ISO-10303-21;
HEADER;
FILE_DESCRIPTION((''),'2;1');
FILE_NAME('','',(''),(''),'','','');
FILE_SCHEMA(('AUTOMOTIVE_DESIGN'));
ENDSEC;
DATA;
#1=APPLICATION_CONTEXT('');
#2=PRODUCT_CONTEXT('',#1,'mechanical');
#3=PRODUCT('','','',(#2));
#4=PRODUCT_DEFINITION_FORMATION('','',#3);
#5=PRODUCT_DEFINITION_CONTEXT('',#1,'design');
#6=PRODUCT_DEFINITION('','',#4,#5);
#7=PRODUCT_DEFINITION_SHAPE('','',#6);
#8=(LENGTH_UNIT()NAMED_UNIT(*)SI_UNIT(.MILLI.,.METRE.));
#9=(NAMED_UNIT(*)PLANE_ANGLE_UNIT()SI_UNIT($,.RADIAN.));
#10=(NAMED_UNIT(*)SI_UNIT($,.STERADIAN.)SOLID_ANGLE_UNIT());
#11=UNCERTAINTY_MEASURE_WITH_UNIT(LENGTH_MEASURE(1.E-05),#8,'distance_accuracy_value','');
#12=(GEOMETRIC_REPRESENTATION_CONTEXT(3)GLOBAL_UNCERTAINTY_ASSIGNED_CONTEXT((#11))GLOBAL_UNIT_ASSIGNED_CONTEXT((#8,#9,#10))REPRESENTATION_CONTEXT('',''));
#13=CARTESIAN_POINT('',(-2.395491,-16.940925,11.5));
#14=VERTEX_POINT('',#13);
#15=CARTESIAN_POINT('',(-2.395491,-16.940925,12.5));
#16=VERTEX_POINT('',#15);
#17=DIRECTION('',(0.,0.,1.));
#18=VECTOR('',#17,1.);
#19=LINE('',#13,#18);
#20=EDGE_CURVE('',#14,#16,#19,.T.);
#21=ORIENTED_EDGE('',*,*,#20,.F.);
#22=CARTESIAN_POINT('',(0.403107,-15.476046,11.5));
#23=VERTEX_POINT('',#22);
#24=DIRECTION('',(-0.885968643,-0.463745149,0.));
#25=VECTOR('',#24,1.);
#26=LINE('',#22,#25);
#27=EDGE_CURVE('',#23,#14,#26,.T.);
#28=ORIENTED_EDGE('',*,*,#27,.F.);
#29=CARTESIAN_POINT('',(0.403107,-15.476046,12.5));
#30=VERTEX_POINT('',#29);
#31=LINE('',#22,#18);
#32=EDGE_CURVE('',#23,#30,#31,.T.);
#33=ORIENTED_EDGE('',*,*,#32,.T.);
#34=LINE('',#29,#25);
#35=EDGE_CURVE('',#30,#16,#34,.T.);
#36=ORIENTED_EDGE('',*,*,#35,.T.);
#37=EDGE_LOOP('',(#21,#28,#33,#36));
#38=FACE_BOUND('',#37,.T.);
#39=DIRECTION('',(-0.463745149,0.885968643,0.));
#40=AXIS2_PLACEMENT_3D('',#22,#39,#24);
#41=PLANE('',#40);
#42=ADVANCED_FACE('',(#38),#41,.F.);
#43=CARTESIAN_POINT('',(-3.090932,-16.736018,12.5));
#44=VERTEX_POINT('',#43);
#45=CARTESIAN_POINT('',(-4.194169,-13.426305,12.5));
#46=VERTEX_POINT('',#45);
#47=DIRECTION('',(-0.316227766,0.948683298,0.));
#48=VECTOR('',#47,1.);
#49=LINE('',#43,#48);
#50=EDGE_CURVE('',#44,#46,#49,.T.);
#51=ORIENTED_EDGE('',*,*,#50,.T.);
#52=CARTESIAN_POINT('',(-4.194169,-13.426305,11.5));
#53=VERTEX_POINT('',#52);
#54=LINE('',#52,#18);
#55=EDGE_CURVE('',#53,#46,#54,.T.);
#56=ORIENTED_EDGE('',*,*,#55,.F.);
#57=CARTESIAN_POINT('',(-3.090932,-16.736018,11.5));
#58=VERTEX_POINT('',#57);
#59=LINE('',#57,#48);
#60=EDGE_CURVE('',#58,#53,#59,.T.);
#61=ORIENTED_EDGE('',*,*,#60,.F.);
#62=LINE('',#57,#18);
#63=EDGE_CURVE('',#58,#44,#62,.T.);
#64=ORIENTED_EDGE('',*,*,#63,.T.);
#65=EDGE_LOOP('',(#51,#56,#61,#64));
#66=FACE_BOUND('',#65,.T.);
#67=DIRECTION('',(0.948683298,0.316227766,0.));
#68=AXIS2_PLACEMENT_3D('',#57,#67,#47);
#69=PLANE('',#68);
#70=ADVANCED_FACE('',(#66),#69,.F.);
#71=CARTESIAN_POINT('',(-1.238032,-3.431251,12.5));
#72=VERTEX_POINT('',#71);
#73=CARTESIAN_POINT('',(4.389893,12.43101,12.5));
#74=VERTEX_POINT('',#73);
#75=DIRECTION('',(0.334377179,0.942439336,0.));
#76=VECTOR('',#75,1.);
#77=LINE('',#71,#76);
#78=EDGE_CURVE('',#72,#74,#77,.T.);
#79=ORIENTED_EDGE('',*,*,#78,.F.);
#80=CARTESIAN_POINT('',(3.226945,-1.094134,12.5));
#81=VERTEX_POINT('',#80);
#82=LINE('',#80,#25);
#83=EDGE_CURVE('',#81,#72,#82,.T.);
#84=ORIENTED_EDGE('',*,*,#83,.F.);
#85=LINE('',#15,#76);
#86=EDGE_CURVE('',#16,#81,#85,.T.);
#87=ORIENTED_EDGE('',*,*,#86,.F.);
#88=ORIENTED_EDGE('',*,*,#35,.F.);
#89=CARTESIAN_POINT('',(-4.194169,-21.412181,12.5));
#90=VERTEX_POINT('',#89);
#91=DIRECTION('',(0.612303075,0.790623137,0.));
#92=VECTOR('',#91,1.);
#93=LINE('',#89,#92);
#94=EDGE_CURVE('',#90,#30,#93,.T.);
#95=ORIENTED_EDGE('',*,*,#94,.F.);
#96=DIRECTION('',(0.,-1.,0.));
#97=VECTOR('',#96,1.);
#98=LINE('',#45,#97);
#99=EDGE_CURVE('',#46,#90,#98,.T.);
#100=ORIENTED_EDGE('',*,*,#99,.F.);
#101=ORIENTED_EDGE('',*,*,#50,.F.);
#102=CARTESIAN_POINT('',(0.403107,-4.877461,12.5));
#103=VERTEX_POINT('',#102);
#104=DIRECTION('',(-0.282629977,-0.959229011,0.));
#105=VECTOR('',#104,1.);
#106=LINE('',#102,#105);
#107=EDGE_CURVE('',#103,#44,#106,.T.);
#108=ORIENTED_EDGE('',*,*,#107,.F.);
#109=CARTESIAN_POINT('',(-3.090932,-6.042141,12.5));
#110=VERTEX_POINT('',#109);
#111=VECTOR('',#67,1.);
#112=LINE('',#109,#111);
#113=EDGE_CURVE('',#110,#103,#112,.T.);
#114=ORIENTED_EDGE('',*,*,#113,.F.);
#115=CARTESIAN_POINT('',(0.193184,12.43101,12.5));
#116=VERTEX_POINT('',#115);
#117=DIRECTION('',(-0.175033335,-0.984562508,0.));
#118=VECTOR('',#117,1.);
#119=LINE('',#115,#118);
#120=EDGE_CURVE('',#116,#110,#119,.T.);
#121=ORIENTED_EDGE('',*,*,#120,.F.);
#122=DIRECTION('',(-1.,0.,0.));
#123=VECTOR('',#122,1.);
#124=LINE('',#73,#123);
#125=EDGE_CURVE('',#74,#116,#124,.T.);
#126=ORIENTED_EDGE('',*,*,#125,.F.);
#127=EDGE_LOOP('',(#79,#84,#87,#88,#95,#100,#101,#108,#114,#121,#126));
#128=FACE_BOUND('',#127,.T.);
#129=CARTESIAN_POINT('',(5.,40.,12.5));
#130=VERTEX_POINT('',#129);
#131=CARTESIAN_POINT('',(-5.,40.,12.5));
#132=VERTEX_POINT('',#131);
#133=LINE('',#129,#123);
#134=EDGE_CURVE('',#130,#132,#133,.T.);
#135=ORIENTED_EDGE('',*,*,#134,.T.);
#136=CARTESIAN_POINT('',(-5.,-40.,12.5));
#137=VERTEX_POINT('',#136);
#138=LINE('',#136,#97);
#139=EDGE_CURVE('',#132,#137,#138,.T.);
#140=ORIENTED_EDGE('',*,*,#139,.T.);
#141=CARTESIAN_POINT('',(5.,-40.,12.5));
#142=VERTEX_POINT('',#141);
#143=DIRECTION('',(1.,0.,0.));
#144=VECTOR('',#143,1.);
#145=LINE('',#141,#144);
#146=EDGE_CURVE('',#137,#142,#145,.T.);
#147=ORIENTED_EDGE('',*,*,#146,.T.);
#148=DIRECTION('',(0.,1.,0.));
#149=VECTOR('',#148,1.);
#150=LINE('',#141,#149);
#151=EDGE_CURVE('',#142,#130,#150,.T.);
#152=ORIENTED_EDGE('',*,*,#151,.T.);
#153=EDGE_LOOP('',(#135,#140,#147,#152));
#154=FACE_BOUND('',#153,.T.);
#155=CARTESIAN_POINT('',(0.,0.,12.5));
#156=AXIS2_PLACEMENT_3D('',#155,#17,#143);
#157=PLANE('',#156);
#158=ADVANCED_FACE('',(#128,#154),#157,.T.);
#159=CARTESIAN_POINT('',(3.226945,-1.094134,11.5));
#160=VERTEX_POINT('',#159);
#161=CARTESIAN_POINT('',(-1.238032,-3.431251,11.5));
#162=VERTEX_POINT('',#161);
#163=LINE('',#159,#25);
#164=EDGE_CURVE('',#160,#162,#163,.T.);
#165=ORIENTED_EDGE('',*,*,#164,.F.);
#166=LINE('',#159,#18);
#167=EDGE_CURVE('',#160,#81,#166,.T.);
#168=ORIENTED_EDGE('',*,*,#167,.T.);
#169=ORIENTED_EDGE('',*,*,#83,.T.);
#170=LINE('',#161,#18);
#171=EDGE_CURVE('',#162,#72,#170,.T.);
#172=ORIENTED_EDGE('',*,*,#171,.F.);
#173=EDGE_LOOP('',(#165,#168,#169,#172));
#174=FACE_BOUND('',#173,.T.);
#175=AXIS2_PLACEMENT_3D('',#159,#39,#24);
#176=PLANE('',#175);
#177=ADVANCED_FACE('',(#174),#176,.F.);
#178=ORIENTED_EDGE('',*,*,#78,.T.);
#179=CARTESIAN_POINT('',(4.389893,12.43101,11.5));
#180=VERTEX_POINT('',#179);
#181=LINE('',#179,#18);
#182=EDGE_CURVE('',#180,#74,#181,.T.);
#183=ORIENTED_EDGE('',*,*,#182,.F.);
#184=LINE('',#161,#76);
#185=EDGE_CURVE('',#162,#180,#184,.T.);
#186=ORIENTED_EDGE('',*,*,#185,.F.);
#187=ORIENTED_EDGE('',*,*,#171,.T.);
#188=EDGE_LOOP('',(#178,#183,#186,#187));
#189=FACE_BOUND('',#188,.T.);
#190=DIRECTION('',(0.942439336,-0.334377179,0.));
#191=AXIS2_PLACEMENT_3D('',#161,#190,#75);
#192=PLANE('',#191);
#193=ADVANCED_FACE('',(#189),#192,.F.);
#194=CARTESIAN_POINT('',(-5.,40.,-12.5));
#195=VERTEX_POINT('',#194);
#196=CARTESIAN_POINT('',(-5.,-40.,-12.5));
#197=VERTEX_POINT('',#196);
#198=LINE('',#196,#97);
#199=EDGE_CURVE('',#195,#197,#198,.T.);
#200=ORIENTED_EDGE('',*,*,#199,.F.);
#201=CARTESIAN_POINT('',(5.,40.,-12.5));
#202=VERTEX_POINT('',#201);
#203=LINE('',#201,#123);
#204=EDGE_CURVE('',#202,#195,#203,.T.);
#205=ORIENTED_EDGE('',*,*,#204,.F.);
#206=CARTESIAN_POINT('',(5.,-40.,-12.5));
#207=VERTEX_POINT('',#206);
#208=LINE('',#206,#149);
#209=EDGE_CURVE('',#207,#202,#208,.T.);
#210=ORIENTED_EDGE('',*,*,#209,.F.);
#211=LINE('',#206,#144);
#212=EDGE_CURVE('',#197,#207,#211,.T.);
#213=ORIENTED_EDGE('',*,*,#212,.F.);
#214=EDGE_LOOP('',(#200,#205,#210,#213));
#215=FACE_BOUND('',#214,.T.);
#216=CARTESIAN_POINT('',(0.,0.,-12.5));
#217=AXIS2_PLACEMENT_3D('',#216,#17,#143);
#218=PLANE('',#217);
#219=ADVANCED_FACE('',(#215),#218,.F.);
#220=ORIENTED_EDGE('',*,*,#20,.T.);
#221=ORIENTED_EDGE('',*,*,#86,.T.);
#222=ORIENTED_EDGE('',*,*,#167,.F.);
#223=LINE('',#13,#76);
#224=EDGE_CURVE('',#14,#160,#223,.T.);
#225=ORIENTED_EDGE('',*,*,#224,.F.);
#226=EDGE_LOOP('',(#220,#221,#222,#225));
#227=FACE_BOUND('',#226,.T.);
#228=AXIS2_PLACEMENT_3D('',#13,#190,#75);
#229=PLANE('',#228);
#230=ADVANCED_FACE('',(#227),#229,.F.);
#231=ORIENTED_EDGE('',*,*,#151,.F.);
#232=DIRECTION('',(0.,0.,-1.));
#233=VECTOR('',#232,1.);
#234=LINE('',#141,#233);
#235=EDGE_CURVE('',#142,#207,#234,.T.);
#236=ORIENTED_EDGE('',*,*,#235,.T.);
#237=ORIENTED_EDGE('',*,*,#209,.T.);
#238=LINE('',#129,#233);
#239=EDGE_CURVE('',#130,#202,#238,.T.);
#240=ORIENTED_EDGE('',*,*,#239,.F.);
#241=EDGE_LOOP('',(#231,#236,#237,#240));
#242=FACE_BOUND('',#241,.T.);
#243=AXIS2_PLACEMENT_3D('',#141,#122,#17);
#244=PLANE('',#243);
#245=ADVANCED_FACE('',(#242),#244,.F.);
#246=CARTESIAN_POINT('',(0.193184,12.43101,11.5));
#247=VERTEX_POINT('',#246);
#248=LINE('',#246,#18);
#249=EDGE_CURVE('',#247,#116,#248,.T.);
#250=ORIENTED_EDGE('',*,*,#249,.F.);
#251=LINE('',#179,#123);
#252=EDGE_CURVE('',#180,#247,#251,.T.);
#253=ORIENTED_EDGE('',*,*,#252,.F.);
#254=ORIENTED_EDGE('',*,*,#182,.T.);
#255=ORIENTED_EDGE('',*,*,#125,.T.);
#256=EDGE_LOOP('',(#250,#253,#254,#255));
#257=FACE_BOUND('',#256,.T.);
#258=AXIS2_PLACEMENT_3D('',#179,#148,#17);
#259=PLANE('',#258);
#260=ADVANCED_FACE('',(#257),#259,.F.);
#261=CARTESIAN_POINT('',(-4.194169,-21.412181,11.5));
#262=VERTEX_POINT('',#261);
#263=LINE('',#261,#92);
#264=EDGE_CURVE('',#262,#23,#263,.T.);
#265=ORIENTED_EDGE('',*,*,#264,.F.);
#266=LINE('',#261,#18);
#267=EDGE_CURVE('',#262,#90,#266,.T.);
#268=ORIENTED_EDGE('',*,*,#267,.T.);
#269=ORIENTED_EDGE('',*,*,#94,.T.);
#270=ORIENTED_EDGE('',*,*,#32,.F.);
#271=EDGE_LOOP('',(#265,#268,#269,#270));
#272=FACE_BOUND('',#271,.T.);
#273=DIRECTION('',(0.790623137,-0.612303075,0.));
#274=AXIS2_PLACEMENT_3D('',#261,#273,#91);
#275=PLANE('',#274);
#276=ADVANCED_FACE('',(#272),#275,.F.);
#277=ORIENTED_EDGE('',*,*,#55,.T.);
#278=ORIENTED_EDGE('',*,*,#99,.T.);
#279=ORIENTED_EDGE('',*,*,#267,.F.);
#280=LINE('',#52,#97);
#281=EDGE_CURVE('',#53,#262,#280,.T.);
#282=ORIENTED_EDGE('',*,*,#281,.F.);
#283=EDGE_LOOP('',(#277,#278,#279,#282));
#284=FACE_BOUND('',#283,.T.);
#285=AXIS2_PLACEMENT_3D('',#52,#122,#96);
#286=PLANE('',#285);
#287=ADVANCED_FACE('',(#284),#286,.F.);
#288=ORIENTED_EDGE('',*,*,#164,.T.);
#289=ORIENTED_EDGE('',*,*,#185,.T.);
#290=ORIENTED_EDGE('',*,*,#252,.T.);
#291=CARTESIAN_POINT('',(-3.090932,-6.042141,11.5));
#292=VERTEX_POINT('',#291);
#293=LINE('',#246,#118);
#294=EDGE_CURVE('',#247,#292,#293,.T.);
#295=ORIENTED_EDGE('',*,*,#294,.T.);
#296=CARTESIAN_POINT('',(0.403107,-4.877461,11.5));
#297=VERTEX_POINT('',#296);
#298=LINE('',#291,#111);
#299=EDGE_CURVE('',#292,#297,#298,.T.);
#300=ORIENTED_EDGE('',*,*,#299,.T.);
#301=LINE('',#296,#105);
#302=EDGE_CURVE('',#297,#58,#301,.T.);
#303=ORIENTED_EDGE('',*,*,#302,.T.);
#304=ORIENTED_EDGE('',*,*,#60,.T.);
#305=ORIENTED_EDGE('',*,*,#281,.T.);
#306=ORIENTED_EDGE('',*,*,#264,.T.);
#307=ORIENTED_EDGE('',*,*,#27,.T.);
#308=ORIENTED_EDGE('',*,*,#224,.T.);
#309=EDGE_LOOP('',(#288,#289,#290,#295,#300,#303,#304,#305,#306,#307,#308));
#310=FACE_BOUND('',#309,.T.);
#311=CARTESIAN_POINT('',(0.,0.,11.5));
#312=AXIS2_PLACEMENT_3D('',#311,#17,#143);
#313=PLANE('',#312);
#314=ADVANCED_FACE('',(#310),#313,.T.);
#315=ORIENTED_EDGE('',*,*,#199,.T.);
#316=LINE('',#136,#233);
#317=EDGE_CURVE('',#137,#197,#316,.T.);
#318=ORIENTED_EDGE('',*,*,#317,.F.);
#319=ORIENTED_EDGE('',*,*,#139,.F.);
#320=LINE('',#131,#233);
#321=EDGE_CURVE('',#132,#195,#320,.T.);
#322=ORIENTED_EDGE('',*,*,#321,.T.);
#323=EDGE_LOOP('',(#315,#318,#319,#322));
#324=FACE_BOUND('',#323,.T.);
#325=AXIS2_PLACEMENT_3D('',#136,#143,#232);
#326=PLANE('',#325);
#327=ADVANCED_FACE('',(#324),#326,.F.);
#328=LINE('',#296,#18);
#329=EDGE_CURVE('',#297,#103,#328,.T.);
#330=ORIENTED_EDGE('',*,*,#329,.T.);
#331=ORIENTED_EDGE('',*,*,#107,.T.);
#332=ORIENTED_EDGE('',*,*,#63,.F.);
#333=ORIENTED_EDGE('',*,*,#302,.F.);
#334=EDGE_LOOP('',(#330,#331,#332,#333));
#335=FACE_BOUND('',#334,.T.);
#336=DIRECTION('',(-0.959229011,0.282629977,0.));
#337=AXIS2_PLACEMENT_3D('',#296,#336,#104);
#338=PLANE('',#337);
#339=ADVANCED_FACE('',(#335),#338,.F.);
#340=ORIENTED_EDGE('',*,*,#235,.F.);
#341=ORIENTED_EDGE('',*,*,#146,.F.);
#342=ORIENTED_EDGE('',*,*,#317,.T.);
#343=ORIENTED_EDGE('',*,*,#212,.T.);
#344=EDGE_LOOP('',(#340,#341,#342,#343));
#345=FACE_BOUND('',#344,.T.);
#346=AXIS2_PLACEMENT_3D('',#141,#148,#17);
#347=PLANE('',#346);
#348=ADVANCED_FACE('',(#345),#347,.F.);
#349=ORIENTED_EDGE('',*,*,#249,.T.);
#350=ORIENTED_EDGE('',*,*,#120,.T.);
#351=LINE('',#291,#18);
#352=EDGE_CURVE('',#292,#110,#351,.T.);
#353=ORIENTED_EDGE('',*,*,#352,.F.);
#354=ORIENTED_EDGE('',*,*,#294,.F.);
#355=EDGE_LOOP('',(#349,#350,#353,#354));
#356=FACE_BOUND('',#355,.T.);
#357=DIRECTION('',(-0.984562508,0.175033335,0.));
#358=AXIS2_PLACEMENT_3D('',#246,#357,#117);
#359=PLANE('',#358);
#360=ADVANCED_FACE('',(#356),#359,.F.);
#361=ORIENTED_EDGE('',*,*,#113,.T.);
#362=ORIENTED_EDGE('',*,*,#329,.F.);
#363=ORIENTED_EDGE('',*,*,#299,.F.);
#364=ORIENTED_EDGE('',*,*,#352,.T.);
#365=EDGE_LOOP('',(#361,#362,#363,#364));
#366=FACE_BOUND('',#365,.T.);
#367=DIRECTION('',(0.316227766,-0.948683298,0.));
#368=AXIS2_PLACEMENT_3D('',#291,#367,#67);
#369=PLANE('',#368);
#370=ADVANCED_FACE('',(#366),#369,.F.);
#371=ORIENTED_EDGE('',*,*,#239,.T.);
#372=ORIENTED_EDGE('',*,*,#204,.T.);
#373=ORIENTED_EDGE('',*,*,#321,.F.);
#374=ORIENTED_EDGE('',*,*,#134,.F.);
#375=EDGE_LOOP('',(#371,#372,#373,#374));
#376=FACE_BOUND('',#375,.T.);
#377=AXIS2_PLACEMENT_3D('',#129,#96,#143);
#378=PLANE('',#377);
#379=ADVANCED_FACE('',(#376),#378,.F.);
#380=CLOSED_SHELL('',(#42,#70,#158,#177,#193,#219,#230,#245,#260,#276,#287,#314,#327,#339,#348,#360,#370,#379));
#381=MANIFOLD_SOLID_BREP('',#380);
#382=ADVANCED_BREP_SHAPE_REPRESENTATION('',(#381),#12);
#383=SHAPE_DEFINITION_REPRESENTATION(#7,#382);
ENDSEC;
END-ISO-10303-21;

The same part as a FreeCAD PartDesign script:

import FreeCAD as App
import Part
import Sketcher

doc = App.newDocument("Part")
body = doc.addObject("PartDesign::Body", "Body")

# Sketch on XY plane
sketch1 = doc.addObject("Sketcher::SketchObject", "Sketch")
body.addObject(sketch1)
sketch1.AttachmentSupport = (doc.XY_Plane, [""])
sketch1.MapMode = "FlatFace"
sketch1.addGeometry(Part.LineSegment(App.Vector(-5, 40, 0), App.Vector(-5, -40, 0)), False)
sketch1.addGeometry(Part.LineSegment(App.Vector(-5, -40, 0), App.Vector(5, -40, 0)), False)
sketch1.addGeometry(Part.LineSegment(App.Vector(5, -40, 0), App.Vector(5, 40, 0)), False)
sketch1.addGeometry(Part.LineSegment(App.Vector(5, 40, 0), App.Vector(-5, 40, 0)), False)
sketch1.addConstraint(Sketcher.Constraint("Coincident", 0, 2, 1, 1))
sketch1.addConstraint(Sketcher.Constraint("Coincident", 1, 2, 2, 1))
sketch1.addConstraint(Sketcher.Constraint("Coincident", 2, 2, 3, 1))
sketch1.addConstraint(Sketcher.Constraint("Coincident", 3, 2, 0, 1))
sketch1.addConstraint(Sketcher.Constraint("Vertical", 0))
sketch1.addConstraint(Sketcher.Constraint("Horizontal", 1))
sketch1.addConstraint(Sketcher.Constraint("Vertical", 2))
sketch1.addConstraint(Sketcher.Constraint("Horizontal", 3))
sketch1.addConstraint(Sketcher.Constraint("Symmetric", 0, 2, 2, 2, -1, 1))
sketch1.addConstraint(Sketcher.Constraint("DistanceX", 1, 1, 1, 2, 10.0))
sketch1.addConstraint(Sketcher.Constraint("DistanceY", 0, 2, 0, 1, 80.0))
pad1 = doc.addObject("PartDesign::Pad", "Pad")
body.addObject(pad1)
pad1.Profile = sketch1
pad1.Length = 25
pad1.Midplane = True

# Sketch on XY plane
sketch2 = doc.addObject("Sketcher::SketchObject", "Sketch001")
body.addObject(sketch2)
sketch2.AttachmentSupport = (doc.XY_Plane, [""])
sketch2.MapMode = "FlatFace"
sketch2.AttachmentOffset = App.Placement(App.Vector(0, 0, 12.5), App.Rotation())
sketch2.addGeometry(Part.LineSegment(App.Vector(0.2, 12.4, 0), App.Vector(-3.1, -6, 0)), False)
sketch2.addGeometry(Part.LineSegment(App.Vector(-3.1, -6, 0), App.Vector(0.4, -4.9, 0)), False)
sketch2.addGeometry(Part.LineSegment(App.Vector(0.4, -4.9, 0), App.Vector(-3.1, -16.7, 0)), False)
sketch2.addGeometry(Part.LineSegment(App.Vector(-3.1, -16.7, 0), App.Vector(-4.2, -13.4, 0)), False)
sketch2.addGeometry(Part.LineSegment(App.Vector(-4.2, -13.4, 0), App.Vector(-4.2, -21.4, 0)), False)
sketch2.addGeometry(Part.LineSegment(App.Vector(-4.2, -21.4, 0), App.Vector(0.4, -15.5, 0)), False)
sketch2.addGeometry(Part.LineSegment(App.Vector(0.4, -15.5, 0), App.Vector(-2.4, -16.9, 0)), False)
sketch2.addGeometry(Part.LineSegment(App.Vector(-2.4, -16.9, 0), App.Vector(3.2, -1.1, 0)), False)
sketch2.addGeometry(Part.LineSegment(App.Vector(3.2, -1.1, 0), App.Vector(-1.2, -3.4, 0)), False)
sketch2.addGeometry(Part.LineSegment(App.Vector(-1.2, -3.4, 0), App.Vector(4.4, 12.4, 0)), False)
sketch2.addGeometry(Part.LineSegment(App.Vector(4.4, 12.4, 0), App.Vector(0.2, 12.4, 0)), False)
sketch2.addConstraint(Sketcher.Constraint("Coincident", 0, 2, 1, 1))
sketch2.addConstraint(Sketcher.Constraint("Coincident", 1, 2, 2, 1))
sketch2.addConstraint(Sketcher.Constraint("Coincident", 2, 2, 3, 1))
sketch2.addConstraint(Sketcher.Constraint("Coincident", 3, 2, 4, 1))
sketch2.addConstraint(Sketcher.Constraint("Coincident", 4, 2, 5, 1))
sketch2.addConstraint(Sketcher.Constraint("Coincident", 5, 2, 6, 1))
sketch2.addConstraint(Sketcher.Constraint("Coincident", 6, 2, 7, 1))
sketch2.addConstraint(Sketcher.Constraint("Coincident", 7, 2, 8, 1))
sketch2.addConstraint(Sketcher.Constraint("Coincident", 8, 2, 9, 1))
sketch2.addConstraint(Sketcher.Constraint("Coincident", 9, 2, 10, 1))
sketch2.addConstraint(Sketcher.Constraint("Coincident", 10, 2, 0, 1))
sketch2.addConstraint(Sketcher.Constraint("Vertical", 4))
sketch2.addConstraint(Sketcher.Constraint("Horizontal", 10))
sketch2.addConstraint(Sketcher.Constraint("Perpendicular", 1, 3))
sketch2.addConstraint(Sketcher.Constraint("Parallel", 6, 8))
sketch2.addConstraint(Sketcher.Constraint("Parallel", 7, 9))
sketch2.addConstraint(Sketcher.Constraint("Vertical", 0, 2, 2, 2))
sketch2.addConstraint(Sketcher.Constraint("Vertical", 1, 2, 5, 2))
sketch2.addConstraint(Sketcher.Constraint("Distance", 0, 18.762802))
sketch2.addConstraint(Sketcher.Constraint("Distance", 6, 3.1588))
sketch2.addConstraint(Sketcher.Constraint("DistanceX", 10, 2, 10, 1, 4.196709))
sketch2.addConstraint(Sketcher.Constraint("DistanceX", 6, 2, 5, 2, 2.798598))
sketch2.addConstraint(Sketcher.Constraint("DistanceX", 0, 2, 8, 2, 1.8529))
sketch2.addConstraint(Sketcher.Constraint("Distance", 1, 3.683041))
sketch2.addConstraint(Sketcher.Constraint("Distance", 5, 7.508172))
sketch2.addConstraint(Sketcher.Constraint("Distance", 9, 16.831068))
sketch2.addConstraint(Sketcher.Constraint("DistanceY", 4, 2, 4, 1, 7.985876))
sketch2.addConstraint(Sketcher.Constraint("DistanceX", 0, 2, -1, 1, 3.090932))
sketch2.addConstraint(Sketcher.Constraint("DistanceY", 0, 2, -1, 1, 6.042141))
sketch2.addConstraint(Sketcher.Constraint("DistanceY", 1, 2, -1, 1, 4.877461))
sketch2.addConstraint(Sketcher.Constraint("DistanceX", 3, 2, -1, 1, 4.194169))
sketch2.addConstraint(Sketcher.Constraint("DistanceY", 4, 2, -1, 1, 21.412181))
sketch2.addConstraint(Sketcher.Constraint("DistanceY", 8, 2, -1, 1, 3.431251))
pocket1 = doc.addObject("PartDesign::Pocket", "Pocket")
body.addObject(pocket1)
pocket1.Profile = sketch2
pocket1.Length = 1

doc.recompute()
